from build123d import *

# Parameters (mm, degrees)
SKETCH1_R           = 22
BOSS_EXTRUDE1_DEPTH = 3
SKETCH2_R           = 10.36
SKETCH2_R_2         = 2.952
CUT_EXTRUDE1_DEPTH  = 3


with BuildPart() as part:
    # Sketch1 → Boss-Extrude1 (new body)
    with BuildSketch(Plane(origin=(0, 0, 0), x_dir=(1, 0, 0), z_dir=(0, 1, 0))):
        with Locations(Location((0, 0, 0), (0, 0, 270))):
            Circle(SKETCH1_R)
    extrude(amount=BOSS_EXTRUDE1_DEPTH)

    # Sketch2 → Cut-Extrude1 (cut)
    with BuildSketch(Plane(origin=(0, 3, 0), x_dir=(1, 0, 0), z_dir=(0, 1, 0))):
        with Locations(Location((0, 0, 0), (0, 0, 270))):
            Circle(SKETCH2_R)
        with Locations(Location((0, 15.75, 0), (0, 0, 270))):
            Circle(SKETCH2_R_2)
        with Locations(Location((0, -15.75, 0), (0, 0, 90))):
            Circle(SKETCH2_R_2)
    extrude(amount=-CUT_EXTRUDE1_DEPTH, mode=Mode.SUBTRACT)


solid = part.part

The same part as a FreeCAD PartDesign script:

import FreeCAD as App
import Part
import Sketcher

doc = App.newDocument("Part")
body = doc.addObject("PartDesign::Body", "Body")

sketch1 = doc.addObject("Sketcher::SketchObject", "Sketch")
body.addObject(sketch1)
sketch1.AttachmentSupport = (doc.XZ_Plane, [""])
sketch1.MapMode = "FlatFace"
sketch1.addGeometry(Part.Circle(App.Vector(0, 0, 0), App.Vector(0, 0, 1), 22), False)
sketch1.addConstraint([
    Sketcher.Constraint("Coincident", 0, 3, -1, 1),
    Sketcher.Constraint("Diameter", 0, 44.0),
])
pad1 = doc.addObject("PartDesign::Pad", "Pad")
body.addObject(pad1)
pad1.Profile = sketch1
pad1.Length = 3
pad1.Reversed = True

sketch2 = doc.addObject("Sketcher::SketchObject", "Sketch001")
body.addObject(sketch2)
sketch2.AttachmentSupport = (doc.XZ_Plane, [""])
sketch2.MapMode = "FlatFace"
sketch2.AttachmentOffset = App.Placement(App.Vector(0, 0, -3), App.Rotation())
sketch2.addGeometry([
    Part.Circle(App.Vector(0, 0, 0), App.Vector(0, 0, 1), 10.4),
    Part.Circle(App.Vector(0, -15.8, 0), App.Vector(0, 0, 1), 3),
    Part.Circle(App.Vector(0, 15.8, 0), App.Vector(0, 0, 1), 3),
], False)
sketch2.addConstraint([
    Sketcher.Constraint("Coincident", 0, 3, -1, 1),
    Sketcher.Constraint("Equal", 1, 2),
    Sketcher.Constraint("Symmetric", 1, 3, 2, 3, -1, 1),
    Sketcher.Constraint("PointOnObject", 1, 3, -2),
    Sketcher.Constraint("Diameter", 0, 20.72),
    Sketcher.Constraint("Diameter", 1, 5.904),
    Sketcher.Constraint("DistanceY", 1, 3, 2, 3, 31.5),
])
pocket1 = doc.addObject("PartDesign::Pocket", "Pocket")
body.addObject(pocket1)
pocket1.Profile = sketch2
pocket1.Length = 3
pocket1.Reversed = True

doc.recompute()
